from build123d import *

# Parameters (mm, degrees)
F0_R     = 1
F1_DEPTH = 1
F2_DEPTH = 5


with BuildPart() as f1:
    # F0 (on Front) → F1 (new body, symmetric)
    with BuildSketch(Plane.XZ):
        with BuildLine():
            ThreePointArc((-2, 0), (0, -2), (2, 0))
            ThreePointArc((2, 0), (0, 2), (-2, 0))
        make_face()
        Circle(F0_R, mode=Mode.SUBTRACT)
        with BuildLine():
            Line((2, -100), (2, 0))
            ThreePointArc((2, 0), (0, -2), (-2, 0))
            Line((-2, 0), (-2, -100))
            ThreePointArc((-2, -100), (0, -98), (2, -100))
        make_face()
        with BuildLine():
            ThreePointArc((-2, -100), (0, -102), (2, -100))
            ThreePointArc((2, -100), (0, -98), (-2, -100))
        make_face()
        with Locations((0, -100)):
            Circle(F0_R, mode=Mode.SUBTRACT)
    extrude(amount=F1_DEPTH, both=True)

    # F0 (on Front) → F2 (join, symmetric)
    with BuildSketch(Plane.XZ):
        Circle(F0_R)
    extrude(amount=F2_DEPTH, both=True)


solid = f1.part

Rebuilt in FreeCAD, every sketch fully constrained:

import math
import FreeCAD as App
import Part
import Sketcher
Q = App.Units.Quantity

doc = App.newDocument("Part")
body = doc.addObject("PartDesign::Body", "Body")

# Sketch on XZ plane
sketch1 = doc.addObject("Sketcher::SketchObject", "Sketch")
body.addObject(sketch1)
sketch1.AttachmentSupport = (doc.XZ_Plane, [""])
sketch1.MapMode = "FlatFace"
sketch1.addGeometry(Part.ArcOfCircle(Part.Circle(App.Vector(0, 0, 0), App.Vector(0, 0, 1), 2), math.radians(0), math.radians(180)), False)
sketch1.addGeometry(Part.LineSegment(App.Vector(-2, 0, 0), App.Vector(-2, -100, 0)), False)
sketch1.addGeometry(Part.ArcOfCircle(Part.Circle(App.Vector(0, -100, 0), App.Vector(0, 0, 1), 2), math.radians(180), math.radians(360)), False)
sketch1.addGeometry(Part.LineSegment(App.Vector(2, -100, 0), App.Vector(2, 0, 0)), False)
sketch1.addGeometry(Part.Circle(App.Vector(0, -100, 0), App.Vector(0, 0, 1), 1), False)
sketch1.addGeometry(Part.Circle(App.Vector(0, 0, 0), App.Vector(0, 0, 1), 1), False)
sketch1.addConstraint(Sketcher.Constraint("Tangent", 0, 2, 1, 1))
sketch1.addConstraint(Sketcher.Constraint("Tangent", 1, 2, 2, 1))
sketch1.addConstraint(Sketcher.Constraint("Tangent", 2, 2, 3, 1))
sketch1.addConstraint(Sketcher.Constraint("Tangent", 3, 2, 0, 1))
sketch1.addConstraint(Sketcher.Constraint("Vertical", 1))
sketch1.addConstraint(Sketcher.Constraint("Vertical", 3))
sketch1.addConstraint(Sketcher.Constraint("Coincident", 0, 3, -1, 1))
sketch1.addConstraint(Sketcher.Constraint("Coincident", 5, 3, -1, 1))
sketch1.addConstraint(Sketcher.Constraint("Coincident", 4, 3, 2, 3))
sketch1.addConstraint(Sketcher.Constraint("Equal", 4, 5))
sketch1.addConstraint(Sketcher.Constraint("Diameter", 4, Q("2 mm")))
sketch1.addConstraint(Sketcher.Constraint("Radius", 0, Q("2 mm")))
sketch1.addConstraint(Sketcher.Constraint("DistanceY", 1, 2, 1, 1, Q("100 mm")))
pad1 = doc.addObject("PartDesign::Pad", "Pad")
body.addObject(pad1)
pad1.Profile = sketch1
pad1.Length = 2
pad1.Midplane = True

# Sketch on XZ plane
sketch2 = doc.addObject("Sketcher::SketchObject", "Sketch001")
body.addObject(sketch2)
sketch2.AttachmentSupport = (doc.XZ_Plane, [""])
sketch2.MapMode = "FlatFace"
sketch2.addGeometry(Part.Circle(App.Vector(0, 0, 0), App.Vector(0, 0, 1), 1), False)
sketch2.addConstraint(Sketcher.Constraint("Coincident", 0, 3, -1, 1))
sketch2.addConstraint(Sketcher.Constraint("Diameter", 0, Q("2 mm")))
pad2 = doc.addObject("PartDesign::Pad", "Pad001")
body.addObject(pad2)
pad2.Profile = sketch2
pad2.Length = 10
pad2.Midplane = True

doc.recompute()
